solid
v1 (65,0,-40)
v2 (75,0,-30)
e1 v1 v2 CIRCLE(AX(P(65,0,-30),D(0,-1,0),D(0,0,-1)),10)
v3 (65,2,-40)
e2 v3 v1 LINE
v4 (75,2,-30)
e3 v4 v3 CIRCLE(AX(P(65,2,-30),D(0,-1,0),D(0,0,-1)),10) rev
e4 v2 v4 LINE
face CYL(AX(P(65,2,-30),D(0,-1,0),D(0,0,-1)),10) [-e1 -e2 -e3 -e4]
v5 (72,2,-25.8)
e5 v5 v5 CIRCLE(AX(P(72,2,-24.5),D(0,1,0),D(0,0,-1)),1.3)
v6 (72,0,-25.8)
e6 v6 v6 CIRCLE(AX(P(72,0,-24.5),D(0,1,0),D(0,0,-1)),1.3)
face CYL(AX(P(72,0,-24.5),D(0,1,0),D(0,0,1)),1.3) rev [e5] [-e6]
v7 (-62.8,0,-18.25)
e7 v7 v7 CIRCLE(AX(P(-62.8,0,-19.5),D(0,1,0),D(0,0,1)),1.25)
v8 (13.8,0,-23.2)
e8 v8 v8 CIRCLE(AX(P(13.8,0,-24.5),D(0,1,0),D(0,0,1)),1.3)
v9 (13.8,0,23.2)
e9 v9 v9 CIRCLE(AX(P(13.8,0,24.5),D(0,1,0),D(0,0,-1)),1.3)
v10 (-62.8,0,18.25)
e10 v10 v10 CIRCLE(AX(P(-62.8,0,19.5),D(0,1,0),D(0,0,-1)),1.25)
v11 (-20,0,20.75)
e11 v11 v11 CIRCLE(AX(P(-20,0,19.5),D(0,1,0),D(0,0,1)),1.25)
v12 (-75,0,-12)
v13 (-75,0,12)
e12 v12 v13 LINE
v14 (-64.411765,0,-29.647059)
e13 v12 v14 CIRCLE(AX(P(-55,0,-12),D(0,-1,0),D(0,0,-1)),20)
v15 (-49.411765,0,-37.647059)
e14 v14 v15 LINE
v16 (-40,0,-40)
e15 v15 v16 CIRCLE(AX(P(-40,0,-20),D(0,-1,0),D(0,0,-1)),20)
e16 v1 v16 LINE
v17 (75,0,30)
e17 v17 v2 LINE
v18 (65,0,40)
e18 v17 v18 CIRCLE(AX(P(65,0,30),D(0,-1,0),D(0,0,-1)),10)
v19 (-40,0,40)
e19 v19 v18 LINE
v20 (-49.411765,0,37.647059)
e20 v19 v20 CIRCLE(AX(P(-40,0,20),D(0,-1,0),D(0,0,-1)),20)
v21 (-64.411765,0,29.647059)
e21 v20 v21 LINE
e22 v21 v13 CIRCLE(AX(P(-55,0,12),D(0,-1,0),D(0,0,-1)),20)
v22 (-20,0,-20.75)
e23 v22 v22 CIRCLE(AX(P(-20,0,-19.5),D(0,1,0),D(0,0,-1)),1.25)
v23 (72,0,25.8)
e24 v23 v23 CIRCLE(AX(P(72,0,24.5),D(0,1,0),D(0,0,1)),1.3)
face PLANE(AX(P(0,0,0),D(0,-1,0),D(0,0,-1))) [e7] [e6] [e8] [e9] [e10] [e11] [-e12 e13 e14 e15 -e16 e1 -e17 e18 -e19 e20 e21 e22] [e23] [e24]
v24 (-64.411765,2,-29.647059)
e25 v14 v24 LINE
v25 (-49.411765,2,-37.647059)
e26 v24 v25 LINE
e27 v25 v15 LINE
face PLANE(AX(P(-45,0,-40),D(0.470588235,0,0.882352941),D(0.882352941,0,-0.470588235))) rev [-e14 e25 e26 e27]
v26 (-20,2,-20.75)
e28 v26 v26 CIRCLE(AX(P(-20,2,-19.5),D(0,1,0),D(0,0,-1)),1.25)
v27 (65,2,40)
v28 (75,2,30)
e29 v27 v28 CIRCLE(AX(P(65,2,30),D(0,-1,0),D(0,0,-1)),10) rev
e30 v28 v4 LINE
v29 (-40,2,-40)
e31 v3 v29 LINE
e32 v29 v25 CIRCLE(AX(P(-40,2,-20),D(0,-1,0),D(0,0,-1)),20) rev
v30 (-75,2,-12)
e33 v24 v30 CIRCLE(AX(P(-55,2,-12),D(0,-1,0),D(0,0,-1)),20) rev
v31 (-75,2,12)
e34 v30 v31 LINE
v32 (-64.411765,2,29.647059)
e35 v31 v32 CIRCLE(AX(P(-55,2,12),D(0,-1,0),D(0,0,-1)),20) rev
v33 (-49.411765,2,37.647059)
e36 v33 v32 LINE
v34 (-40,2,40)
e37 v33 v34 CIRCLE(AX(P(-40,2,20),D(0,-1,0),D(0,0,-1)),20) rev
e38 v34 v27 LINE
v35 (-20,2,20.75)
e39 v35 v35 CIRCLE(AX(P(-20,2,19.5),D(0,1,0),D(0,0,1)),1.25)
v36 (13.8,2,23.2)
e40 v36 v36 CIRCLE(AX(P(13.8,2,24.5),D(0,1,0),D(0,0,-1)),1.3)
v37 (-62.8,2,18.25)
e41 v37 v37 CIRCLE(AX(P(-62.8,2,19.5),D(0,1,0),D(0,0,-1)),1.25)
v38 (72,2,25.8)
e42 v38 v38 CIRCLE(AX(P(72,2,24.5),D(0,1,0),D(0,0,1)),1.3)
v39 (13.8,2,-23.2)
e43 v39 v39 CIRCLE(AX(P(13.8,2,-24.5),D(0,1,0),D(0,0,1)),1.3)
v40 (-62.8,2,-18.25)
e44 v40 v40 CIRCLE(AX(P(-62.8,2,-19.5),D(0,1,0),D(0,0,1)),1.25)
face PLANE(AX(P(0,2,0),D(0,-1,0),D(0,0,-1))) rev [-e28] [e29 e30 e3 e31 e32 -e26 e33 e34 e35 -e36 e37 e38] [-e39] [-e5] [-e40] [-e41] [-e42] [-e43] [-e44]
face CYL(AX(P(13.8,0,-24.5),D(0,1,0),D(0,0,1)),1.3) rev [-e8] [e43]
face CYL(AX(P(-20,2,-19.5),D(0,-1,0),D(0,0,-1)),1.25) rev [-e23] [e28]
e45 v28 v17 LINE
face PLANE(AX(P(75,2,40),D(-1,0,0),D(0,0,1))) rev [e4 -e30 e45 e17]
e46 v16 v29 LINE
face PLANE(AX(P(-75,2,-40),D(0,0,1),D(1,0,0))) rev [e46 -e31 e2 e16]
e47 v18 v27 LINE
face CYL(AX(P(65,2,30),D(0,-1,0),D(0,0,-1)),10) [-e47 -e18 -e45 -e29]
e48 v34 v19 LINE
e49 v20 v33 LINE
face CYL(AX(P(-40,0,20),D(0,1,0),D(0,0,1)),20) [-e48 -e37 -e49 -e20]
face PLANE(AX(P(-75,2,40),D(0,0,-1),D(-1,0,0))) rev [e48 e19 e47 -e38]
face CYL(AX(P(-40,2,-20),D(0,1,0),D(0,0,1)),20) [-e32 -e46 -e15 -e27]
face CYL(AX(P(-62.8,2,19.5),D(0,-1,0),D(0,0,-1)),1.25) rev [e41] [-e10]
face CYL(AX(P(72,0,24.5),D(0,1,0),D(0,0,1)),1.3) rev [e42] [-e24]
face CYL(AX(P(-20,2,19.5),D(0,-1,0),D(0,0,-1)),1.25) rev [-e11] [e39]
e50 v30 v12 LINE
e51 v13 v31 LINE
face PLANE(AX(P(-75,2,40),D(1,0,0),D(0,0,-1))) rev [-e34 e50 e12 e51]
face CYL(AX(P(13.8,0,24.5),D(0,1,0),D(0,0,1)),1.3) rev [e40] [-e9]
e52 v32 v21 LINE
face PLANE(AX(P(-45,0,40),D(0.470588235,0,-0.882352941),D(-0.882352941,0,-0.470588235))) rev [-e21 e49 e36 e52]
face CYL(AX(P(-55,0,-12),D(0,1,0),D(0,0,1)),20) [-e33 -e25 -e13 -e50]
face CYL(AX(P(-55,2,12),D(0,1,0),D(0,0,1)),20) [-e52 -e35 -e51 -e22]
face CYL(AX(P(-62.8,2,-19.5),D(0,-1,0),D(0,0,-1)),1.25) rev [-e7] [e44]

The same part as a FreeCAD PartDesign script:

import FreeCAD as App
import Part
import Sketcher


def edges_at(feature, points):
    """Names of the edges that pass closest to the given points."""
    edges = feature.Shape.Edges
    near = lambda p: min(range(len(edges)), key=lambda i: edges[i].distToShape(Part.Vertex(*p))[0])
    return sorted({f"Edge{near(p) + 1}" for p in points})


def add_polygon(sketch, points):
    """Adds a closed chain of lines whose ends are joined by coincident constraints."""
    first, n = sketch.GeometryCount, len(points)
    for a, b in zip(points, points[1:] + points[:1]):
        sketch.addGeometry(Part.LineSegment(App.Vector(*a, 0), App.Vector(*b, 0)), False)
    for i in range(n):
        sketch.addConstraint(Sketcher.Constraint("Coincident", first + i, 2, first + (i + 1) % n, 1))

doc = App.newDocument("Part")
body = doc.addObject("PartDesign::Body", "Body")

sketch1 = doc.addObject("Sketcher::SketchObject", "Sketch")
body.addObject(sketch1)
sketch1.AttachmentSupport = (doc.XZ_Plane, [""])
sketch1.MapMode = "FlatFace"
add_polygon(sketch1, [(-75, -40), (-75, 40), (75, 40), (75, -40)])
sketch1.addGeometry(Part.Circle(App.Vector(-62.8, 19.5, 0), App.Vector(0, 0, 1), 1.25), False)
sketch1.addGeometry(Part.Circle(App.Vector(-20, 19.5, 0), App.Vector(0, 0, 1), 1.25), False)
sketch1.addGeometry(Part.Circle(App.Vector(-62.8, -19.5, 0), App.Vector(0, 0, 1), 1.25), False)
sketch1.addGeometry(Part.Circle(App.Vector(-20, -19.5, 0), App.Vector(0, 0, 1), 1.25), False)
sketch1.addConstraint([
    Sketcher.Constraint("Vertical", 0),
    Sketcher.Constraint("Horizontal", 1),
    Sketcher.Constraint("Vertical", 2),
    Sketcher.Constraint("Horizontal", 3),
    Sketcher.Constraint("Equal", 4, 5),
    Sketcher.Constraint("Equal", 5, 6),
    Sketcher.Constraint("Equal", 6, 7),
    Sketcher.Constraint("Symmetric", 0, 2, 2, 2, -1, 1),
    Sketcher.Constraint("Symmetric", 4, 3, 6, 3, -1),
    Sketcher.Constraint("Symmetric", 5, 3, 7, 3, -1),
    Sketcher.Constraint("Horizontal", 4, 3, 5, 3),
    Sketcher.Constraint("Diameter", 4, 2.5),
    Sketcher.Constraint("DistanceX", 1, 1, 1, 2, 150.0),
    Sketcher.Constraint("DistanceY", 0, 1, 0, 2, 80.0),
    Sketcher.Constraint("DistanceX", 5, 3, -1, 1, 20.0),
    Sketcher.Constraint("DistanceY", 6, 3, 4, 3, 39.0),
    Sketcher.Constraint("DistanceX", 4, 3, -1, 1, 62.8),
])
pad1 = doc.addObject("PartDesign::Pad", "Pad")
body.addObject(pad1)
pad1.Profile = sketch1
pad1.Length = 2
pad1.Reversed = True

sketch2 = doc.addObject("Sketcher::SketchObject", "Sketch001")
body.addObject(sketch2)
sketch2.AttachmentSupport = (doc.XZ_Plane, [""])
sketch2.MapMode = "FlatFace"
sketch2.AttachmentOffset = App.Placement(App.Vector(0, 0, -2), App.Rotation())
sketch2.addGeometry([
    Part.Circle(App.Vector(13.8, -24.5, 0), App.Vector(0, 0, 1), 1.3),
    Part.Circle(App.Vector(72, -24.5, 0), App.Vector(0, 0, 1), 1.3),
    Part.Circle(App.Vector(13.8, 24.5, 0), App.Vector(0, 0, 1), 1.3),
    Part.Circle(App.Vector(72, 24.5, 0), App.Vector(0, 0, 1), 1.3),
], False)
sketch2.addConstraint([
    Sketcher.Constraint("Equal", 0, 1),
    Sketcher.Constraint("Equal", 1, 2),
    Sketcher.Constraint("Equal", 2, 3),
    Sketcher.Constraint("Symmetric", 0, 3, 2, 3, -1),
    Sketcher.Constraint("Symmetric", 1, 3, 3, 3, -1),
    Sketcher.Constraint("Horizontal", 0, 3, 1, 3),
    Sketcher.Constraint("Diameter", 0, 2.6),
    Sketcher.Constraint("DistanceX", -1, 1, 1, 3, 72.0),
    Sketcher.Constraint("DistanceY", 0, 3, 2, 3, 49.0),
    Sketcher.Constraint("DistanceX", -1, 1, 0, 3, 13.8),
])
pocket1 = doc.addObject("PartDesign::Pocket", "Pocket")
body.addObject(pocket1)
pocket1.Profile = sketch2
pocket1.Length = 2
pocket1.Reversed = True

sketch3 = doc.addObject("Sketcher::SketchObject", "Sketch002")
body.addObject(sketch3)
sketch3.AttachmentSupport = (doc.XZ_Plane, [""])
sketch3.MapMode = "FlatFace"
sketch3.AttachmentOffset = App.Placement(App.Vector(0, 0, -2), App.Rotation())
add_polygon(sketch3, [(-45, -40), (-75, -40), (-75, -24)])
add_polygon(sketch3, [(-45, 40), (-75, 24), (-75, 40)])
sketch3.addConstraint([
    Sketcher.Constraint("Horizontal", 0),
    Sketcher.Constraint("Vertical", 1),
    Sketcher.Constraint("Vertical", 4),
    Sketcher.Constraint("Horizontal", 5),
    Sketcher.Constraint("Symmetric", 1, 2, 3, 2, -1),
    Sketcher.Constraint("Symmetric", 2, 2, 5, 2, -1),
    Sketcher.Constraint("DistanceX", 0, 2, 0, 1, 30.0),
    Sketcher.Constraint("DistanceY", 1, 1, 1, 2, 16.0),
    Sketcher.Constraint("DistanceX", 0, 2, -1, 1, 75.0),
    Sketcher.Constraint("DistanceY", 0, 2, -1, 1, 40.0),
])
pocket2 = doc.addObject("PartDesign::Pocket", "Pocket001")
body.addObject(pocket2)
pocket2.Profile = sketch3
pocket2.Length = 2
pocket2.Reversed = True
doc.recompute()

fillet = doc.addObject("PartDesign::Fillet", "Fillet")
body.addObject(fillet)
fillet.Base = (pocket2, edges_at(pocket2, [
    (-75, 1, -24),
    (-45, 1, -40),
    (-45, 1, 40),
    (-75, 1, 24),
]))
fillet.Radius = 20
doc.recompute()

fillet2 = doc.addObject("PartDesign::Fillet", "Fillet001")
body.addObject(fillet2)
fillet2.Base = (fillet, edges_at(fillet, [(75, 1, 40), (75, 1, -40)]))
fillet2.Radius = 10

doc.recompute()
